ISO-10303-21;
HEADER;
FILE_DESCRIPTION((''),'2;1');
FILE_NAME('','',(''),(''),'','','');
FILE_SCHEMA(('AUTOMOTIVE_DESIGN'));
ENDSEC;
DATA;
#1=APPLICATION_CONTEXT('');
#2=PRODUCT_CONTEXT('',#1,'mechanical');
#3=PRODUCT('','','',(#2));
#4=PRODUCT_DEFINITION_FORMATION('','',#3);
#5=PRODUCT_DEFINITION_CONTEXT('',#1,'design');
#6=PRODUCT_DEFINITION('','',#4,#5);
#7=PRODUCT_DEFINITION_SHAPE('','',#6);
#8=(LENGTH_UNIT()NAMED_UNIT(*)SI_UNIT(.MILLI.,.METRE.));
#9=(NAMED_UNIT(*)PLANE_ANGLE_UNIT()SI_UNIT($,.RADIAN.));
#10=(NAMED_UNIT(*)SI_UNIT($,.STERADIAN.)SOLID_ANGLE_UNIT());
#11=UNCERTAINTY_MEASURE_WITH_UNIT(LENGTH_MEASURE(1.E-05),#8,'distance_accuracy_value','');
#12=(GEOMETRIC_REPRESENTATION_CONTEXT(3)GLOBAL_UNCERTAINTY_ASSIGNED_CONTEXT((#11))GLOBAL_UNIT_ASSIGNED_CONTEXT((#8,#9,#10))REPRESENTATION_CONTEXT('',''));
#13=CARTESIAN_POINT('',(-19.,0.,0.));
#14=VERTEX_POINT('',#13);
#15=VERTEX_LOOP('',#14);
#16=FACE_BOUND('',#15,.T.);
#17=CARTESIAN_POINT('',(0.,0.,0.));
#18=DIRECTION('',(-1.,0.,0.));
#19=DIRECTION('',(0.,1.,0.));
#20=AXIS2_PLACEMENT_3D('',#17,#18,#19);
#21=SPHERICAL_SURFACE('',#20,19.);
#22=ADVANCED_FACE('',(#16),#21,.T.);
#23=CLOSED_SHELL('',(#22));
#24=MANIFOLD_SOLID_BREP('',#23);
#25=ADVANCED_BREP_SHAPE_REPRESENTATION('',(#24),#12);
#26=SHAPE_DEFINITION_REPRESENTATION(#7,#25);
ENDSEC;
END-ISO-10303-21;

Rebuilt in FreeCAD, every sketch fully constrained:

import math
import FreeCAD as App
import Part
import Sketcher
Q = App.Units.Quantity

doc = App.newDocument("Part")
body = doc.addObject("PartDesign::Body", "Body")

sketch1 = doc.addObject("Sketcher::SketchObject", "Sketch")
body.addObject(sketch1)
sketch1.AttachmentSupport = (doc.XY_Plane, [""])
sketch1.MapMode = "FlatFace"
sketch1.addGeometry([
    Part.LineSegment(App.Vector(0, 19, 0), App.Vector(0, 0, 0)),
    Part.LineSegment(App.Vector(0, 0, 0), App.Vector(19, 0, 0)),
    Part.ArcOfCircle(Part.Circle(App.Vector(0, 0, 0), App.Vector(0, 0, 1), 19), math.radians(0), math.radians(90)),
], False)
sketch1.addConstraint([
    Sketcher.Constraint("Coincident", 0, 2, 1, 1),
    Sketcher.Constraint("Coincident", 1, 2, 2, 1),
    Sketcher.Constraint("Coincident", 2, 2, 0, 1),
    Sketcher.Constraint("Vertical", 0),
    Sketcher.Constraint("Horizontal", 1),
    Sketcher.Constraint("Coincident", 2, 3, -1, 1),
    Sketcher.Constraint("Coincident", 0, 2, -1, 1),
    Sketcher.Constraint("Radius", 2, Q("19 mm")),
])
revolution = doc.addObject("PartDesign::Revolution", "Revolution")
body.addObject(revolution)
revolution.Profile = sketch1
revolution.ReferenceAxis = (sketch1, ["H_Axis"])
revolution.Angle = 360
doc.recompute()

mirrored = doc.addObject("PartDesign::Mirrored", "Mirrored")
body.addObject(mirrored)
mirrored.Originals = [revolution]
mirrored.MirrorPlane = (doc.YZ_Plane, [""])
body.Tip = mirrored

doc.recompute()
